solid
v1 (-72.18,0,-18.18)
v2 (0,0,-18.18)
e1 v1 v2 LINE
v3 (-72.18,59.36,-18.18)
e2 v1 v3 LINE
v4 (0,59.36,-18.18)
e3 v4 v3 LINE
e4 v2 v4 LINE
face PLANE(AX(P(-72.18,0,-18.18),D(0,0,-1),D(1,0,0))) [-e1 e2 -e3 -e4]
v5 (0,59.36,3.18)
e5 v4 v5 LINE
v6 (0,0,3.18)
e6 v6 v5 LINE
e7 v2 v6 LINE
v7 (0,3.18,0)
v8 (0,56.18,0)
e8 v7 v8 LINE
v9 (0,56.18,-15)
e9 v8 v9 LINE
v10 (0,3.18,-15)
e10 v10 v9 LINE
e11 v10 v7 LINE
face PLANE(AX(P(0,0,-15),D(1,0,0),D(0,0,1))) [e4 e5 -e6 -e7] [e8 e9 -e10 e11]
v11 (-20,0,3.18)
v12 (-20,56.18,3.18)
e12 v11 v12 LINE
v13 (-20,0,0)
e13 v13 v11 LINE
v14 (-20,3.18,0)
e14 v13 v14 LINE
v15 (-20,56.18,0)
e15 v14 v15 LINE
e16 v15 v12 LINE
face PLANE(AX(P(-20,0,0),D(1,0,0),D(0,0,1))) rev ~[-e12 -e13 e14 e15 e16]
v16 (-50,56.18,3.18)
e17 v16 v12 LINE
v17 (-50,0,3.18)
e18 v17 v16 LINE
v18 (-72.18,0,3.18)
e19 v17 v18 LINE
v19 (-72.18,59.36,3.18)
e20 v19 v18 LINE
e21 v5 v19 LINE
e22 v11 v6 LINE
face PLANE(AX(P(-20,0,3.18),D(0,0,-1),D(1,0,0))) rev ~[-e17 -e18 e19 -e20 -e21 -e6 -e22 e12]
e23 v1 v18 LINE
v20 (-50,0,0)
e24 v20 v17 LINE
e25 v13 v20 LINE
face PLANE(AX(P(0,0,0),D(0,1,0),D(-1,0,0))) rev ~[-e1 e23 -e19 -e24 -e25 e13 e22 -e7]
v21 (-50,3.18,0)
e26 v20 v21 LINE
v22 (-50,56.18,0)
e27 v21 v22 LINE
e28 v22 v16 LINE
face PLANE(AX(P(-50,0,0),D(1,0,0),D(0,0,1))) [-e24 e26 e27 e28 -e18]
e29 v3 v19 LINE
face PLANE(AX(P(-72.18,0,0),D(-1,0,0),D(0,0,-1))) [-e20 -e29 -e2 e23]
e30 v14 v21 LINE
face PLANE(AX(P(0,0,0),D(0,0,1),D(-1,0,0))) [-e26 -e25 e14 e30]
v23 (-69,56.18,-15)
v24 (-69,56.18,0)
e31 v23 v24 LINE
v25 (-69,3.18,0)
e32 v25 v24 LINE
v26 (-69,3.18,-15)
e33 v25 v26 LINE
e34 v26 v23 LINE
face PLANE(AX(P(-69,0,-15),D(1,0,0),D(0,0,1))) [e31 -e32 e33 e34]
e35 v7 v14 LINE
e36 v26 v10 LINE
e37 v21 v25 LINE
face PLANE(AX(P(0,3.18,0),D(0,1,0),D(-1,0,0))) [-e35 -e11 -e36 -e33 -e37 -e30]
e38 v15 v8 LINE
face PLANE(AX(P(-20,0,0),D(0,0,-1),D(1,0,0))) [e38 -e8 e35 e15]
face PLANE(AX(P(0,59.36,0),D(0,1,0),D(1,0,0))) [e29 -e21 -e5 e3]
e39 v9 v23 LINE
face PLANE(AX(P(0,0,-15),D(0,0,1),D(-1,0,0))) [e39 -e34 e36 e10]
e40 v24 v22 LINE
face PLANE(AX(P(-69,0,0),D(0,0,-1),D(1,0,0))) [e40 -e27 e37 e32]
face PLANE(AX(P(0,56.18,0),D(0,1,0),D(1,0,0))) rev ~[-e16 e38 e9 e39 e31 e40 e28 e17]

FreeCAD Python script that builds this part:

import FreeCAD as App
import Part
import Sketcher
Q = App.Units.Quantity


def add_polygon(sketch, points):
    """Adds a closed chain of lines whose ends are joined by coincident constraints."""
    first, n = sketch.GeometryCount, len(points)
    for a, b in zip(points, points[1:] + points[:1]):
        sketch.addGeometry(Part.LineSegment(App.Vector(*a, 0), App.Vector(*b, 0)), False)
    for i in range(n):
        sketch.addConstraint(Sketcher.Constraint("Coincident", first + i, 2, first + (i + 1) % n, 1))

doc = App.newDocument("Part")
params = doc.addObject("Spreadsheet::Sheet", "Params")
for row, (alias, value) in enumerate([
    ("sketch1_width", "69 mm"),
    ("sketch1_height", "15 mm"),
    ("pad1_length", "3.18 mm"),
    ("sketch2_width", "20 mm"),
    ("sketch2_width2", "22.18 mm"),
    ("sketch2_width3", "72.18 mm"),
    ("sketch2_height", "3.18 mm"),
    ("sketch2_width4", "19 mm"),
    ("pad2_length", "56.18 mm"),
    ("sketch3_width", "72.18 mm"),
    ("sketch3_height", "21.36 mm"),
    ("pad3_length", "3.18 mm"),
], start=1):
    params.set(f"A{row}", alias)
    params.set(f"B{row}", "=" + value)
    params.setAlias(f"B{row}", alias)

body = doc.addObject("PartDesign::Body", "Body")

# Sketch on XZ plane
sketch1 = body.newObject("Sketcher::SketchObject", "Sketch")
sketch1.AttachmentSupport = (doc.getObject("XZ_Plane"), [""])
sketch1.MapMode = "FlatFace"
add_polygon(sketch1, [(-69, 0), (0, 0), (0, -15), (-69, -15)])  # lines 0-3
sketch1.addConstraint([
    Sketcher.Constraint("Horizontal", 0),
    Sketcher.Constraint("Vertical", 1),
    Sketcher.Constraint("Horizontal", 2),
    Sketcher.Constraint("Vertical", 3),
    Sketcher.Constraint("Coincident", 0, 2, -1, 1),
    Sketcher.Constraint("DistanceX", 0, 1, 0, 2, Q("69 mm")),
    Sketcher.Constraint("DistanceY", 1, 2, 1, 1, Q("15 mm")),
])
sketch1.setExpression("Constraints[9]", "Params.sketch1_width")
sketch1.setExpression("Constraints[10]", "Params.sketch1_height")
pad1 = body.newObject("PartDesign::Pad", "Pad")
pad1.Profile = sketch1
pad1.setExpression("Length", "Params.pad1_length")
pad1.Reversed = True

# Sketch on XZ plane
sketch2 = body.newObject("Sketcher::SketchObject", "Sketch001")
sketch2.AttachmentSupport = (doc.getObject("XZ_Plane"), [""])
sketch2.MapMode = "FlatFace"
add_polygon(sketch2, [(-72.2, 3.2), (-50, 3.2), (-50, 0), (-69, 0), (-69, -15), (0, -15), (0, -18.2), (-72.2, -18.2)])  # lines 0-7
add_polygon(sketch2, [(0, 0), (-20, 0), (-20, 3.2), (0, 3.2)])  # lines 8-11
sketch2.addConstraint([
    Sketcher.Constraint("Horizontal", 0),
    Sketcher.Constraint("Vertical", 1),
    Sketcher.Constraint("Horizontal", 2),
    Sketcher.Constraint("Vertical", 3),
    Sketcher.Constraint("Horizontal", 4),
    Sketcher.Constraint("Vertical", 5),
    Sketcher.Constraint("Horizontal", 6),
    Sketcher.Constraint("Vertical", 7),
    Sketcher.Constraint("Horizontal", 8),
    Sketcher.Constraint("Vertical", 9),
    Sketcher.Constraint("Horizontal", 10),
    Sketcher.Constraint("Vertical", 11),
    Sketcher.Constraint("Coincident", 11, 2, -1, 1),
    Sketcher.Constraint("PointOnObject", 1, 2, -1),
    Sketcher.Constraint("PointOnObject", 4, 2, -2),
    Sketcher.Constraint("Horizontal", 7, 2, 9, 2),
    Sketcher.Constraint("Equal", 1, 5),
    Sketcher.Constraint("DistanceX", 8, 2, 8, 1, Q("20 mm")),
    Sketcher.Constraint("DistanceX", 0, 1, 0, 2, Q("22.18 mm")),
    Sketcher.Constraint("DistanceX", 6, 2, 6, 1, Q("72.18 mm")),
    Sketcher.Constraint("DistanceY", 1, 2, 1, 1, Q("3.18 mm")),
    Sketcher.Constraint("DistanceX", 2, 2, 2, 1, Q("19 mm")),
    Sketcher.Constraint("DistanceY", 3, 2, 3, 1, Q("15 mm")),
])
sketch2.setExpression("Constraints[29]", "Params.sketch2_width")
sketch2.setExpression("Constraints[30]", "Params.sketch2_width2")
sketch2.setExpression("Constraints[31]", "Params.sketch2_width3")
sketch2.setExpression("Constraints[32]", "Params.sketch2_height")
sketch2.setExpression("Constraints[33]", "Params.sketch2_width4")
pad2 = body.newObject("PartDesign::Pad", "Pad001")
pad2.Profile = sketch2
pad2.setExpression("Length", "Params.pad2_length")
pad2.Reversed = True

# Sketch on XZ plane
sketch3 = body.newObject("Sketcher::SketchObject", "Sketch002")
sketch3.AttachmentSupport = (doc.getObject("XZ_Plane"), [""])
sketch3.MapMode = "FlatFace"
sketch3.AttachmentOffset = App.Placement(App.Vector(0, 0, -56.18), App.Rotation())
add_polygon(sketch3, [(0, 3), (0, -18), (-72, -18), (-72, 3)])  # lines 0-3
sketch3.addConstraint([
    Sketcher.Constraint("Vertical", 0),
    Sketcher.Constraint("Horizontal", 1),
    Sketcher.Constraint("Vertical", 2),
    Sketcher.Constraint("Horizontal", 3),
    Sketcher.Constraint("PointOnObject", 0, 2, -2),
    Sketcher.Constraint("DistanceX", 1, 2, 1, 1, Q("72.18 mm")),
    Sketcher.Constraint("DistanceY", 0, 2, 0, 1, Q("21.36 mm")),
    Sketcher.Constraint("DistanceY", 0, 2, -1, 1, Q("18.18 mm")),
])
sketch3.setExpression("Constraints[9]", "Params.sketch3_width")
sketch3.setExpression("Constraints[10]", "Params.sketch3_height")
pad3 = body.newObject("PartDesign::Pad", "Pad002")
pad3.Profile = sketch3
pad3.setExpression("Length", "Params.pad3_length")
pad3.Reversed = True

doc.recompute()
